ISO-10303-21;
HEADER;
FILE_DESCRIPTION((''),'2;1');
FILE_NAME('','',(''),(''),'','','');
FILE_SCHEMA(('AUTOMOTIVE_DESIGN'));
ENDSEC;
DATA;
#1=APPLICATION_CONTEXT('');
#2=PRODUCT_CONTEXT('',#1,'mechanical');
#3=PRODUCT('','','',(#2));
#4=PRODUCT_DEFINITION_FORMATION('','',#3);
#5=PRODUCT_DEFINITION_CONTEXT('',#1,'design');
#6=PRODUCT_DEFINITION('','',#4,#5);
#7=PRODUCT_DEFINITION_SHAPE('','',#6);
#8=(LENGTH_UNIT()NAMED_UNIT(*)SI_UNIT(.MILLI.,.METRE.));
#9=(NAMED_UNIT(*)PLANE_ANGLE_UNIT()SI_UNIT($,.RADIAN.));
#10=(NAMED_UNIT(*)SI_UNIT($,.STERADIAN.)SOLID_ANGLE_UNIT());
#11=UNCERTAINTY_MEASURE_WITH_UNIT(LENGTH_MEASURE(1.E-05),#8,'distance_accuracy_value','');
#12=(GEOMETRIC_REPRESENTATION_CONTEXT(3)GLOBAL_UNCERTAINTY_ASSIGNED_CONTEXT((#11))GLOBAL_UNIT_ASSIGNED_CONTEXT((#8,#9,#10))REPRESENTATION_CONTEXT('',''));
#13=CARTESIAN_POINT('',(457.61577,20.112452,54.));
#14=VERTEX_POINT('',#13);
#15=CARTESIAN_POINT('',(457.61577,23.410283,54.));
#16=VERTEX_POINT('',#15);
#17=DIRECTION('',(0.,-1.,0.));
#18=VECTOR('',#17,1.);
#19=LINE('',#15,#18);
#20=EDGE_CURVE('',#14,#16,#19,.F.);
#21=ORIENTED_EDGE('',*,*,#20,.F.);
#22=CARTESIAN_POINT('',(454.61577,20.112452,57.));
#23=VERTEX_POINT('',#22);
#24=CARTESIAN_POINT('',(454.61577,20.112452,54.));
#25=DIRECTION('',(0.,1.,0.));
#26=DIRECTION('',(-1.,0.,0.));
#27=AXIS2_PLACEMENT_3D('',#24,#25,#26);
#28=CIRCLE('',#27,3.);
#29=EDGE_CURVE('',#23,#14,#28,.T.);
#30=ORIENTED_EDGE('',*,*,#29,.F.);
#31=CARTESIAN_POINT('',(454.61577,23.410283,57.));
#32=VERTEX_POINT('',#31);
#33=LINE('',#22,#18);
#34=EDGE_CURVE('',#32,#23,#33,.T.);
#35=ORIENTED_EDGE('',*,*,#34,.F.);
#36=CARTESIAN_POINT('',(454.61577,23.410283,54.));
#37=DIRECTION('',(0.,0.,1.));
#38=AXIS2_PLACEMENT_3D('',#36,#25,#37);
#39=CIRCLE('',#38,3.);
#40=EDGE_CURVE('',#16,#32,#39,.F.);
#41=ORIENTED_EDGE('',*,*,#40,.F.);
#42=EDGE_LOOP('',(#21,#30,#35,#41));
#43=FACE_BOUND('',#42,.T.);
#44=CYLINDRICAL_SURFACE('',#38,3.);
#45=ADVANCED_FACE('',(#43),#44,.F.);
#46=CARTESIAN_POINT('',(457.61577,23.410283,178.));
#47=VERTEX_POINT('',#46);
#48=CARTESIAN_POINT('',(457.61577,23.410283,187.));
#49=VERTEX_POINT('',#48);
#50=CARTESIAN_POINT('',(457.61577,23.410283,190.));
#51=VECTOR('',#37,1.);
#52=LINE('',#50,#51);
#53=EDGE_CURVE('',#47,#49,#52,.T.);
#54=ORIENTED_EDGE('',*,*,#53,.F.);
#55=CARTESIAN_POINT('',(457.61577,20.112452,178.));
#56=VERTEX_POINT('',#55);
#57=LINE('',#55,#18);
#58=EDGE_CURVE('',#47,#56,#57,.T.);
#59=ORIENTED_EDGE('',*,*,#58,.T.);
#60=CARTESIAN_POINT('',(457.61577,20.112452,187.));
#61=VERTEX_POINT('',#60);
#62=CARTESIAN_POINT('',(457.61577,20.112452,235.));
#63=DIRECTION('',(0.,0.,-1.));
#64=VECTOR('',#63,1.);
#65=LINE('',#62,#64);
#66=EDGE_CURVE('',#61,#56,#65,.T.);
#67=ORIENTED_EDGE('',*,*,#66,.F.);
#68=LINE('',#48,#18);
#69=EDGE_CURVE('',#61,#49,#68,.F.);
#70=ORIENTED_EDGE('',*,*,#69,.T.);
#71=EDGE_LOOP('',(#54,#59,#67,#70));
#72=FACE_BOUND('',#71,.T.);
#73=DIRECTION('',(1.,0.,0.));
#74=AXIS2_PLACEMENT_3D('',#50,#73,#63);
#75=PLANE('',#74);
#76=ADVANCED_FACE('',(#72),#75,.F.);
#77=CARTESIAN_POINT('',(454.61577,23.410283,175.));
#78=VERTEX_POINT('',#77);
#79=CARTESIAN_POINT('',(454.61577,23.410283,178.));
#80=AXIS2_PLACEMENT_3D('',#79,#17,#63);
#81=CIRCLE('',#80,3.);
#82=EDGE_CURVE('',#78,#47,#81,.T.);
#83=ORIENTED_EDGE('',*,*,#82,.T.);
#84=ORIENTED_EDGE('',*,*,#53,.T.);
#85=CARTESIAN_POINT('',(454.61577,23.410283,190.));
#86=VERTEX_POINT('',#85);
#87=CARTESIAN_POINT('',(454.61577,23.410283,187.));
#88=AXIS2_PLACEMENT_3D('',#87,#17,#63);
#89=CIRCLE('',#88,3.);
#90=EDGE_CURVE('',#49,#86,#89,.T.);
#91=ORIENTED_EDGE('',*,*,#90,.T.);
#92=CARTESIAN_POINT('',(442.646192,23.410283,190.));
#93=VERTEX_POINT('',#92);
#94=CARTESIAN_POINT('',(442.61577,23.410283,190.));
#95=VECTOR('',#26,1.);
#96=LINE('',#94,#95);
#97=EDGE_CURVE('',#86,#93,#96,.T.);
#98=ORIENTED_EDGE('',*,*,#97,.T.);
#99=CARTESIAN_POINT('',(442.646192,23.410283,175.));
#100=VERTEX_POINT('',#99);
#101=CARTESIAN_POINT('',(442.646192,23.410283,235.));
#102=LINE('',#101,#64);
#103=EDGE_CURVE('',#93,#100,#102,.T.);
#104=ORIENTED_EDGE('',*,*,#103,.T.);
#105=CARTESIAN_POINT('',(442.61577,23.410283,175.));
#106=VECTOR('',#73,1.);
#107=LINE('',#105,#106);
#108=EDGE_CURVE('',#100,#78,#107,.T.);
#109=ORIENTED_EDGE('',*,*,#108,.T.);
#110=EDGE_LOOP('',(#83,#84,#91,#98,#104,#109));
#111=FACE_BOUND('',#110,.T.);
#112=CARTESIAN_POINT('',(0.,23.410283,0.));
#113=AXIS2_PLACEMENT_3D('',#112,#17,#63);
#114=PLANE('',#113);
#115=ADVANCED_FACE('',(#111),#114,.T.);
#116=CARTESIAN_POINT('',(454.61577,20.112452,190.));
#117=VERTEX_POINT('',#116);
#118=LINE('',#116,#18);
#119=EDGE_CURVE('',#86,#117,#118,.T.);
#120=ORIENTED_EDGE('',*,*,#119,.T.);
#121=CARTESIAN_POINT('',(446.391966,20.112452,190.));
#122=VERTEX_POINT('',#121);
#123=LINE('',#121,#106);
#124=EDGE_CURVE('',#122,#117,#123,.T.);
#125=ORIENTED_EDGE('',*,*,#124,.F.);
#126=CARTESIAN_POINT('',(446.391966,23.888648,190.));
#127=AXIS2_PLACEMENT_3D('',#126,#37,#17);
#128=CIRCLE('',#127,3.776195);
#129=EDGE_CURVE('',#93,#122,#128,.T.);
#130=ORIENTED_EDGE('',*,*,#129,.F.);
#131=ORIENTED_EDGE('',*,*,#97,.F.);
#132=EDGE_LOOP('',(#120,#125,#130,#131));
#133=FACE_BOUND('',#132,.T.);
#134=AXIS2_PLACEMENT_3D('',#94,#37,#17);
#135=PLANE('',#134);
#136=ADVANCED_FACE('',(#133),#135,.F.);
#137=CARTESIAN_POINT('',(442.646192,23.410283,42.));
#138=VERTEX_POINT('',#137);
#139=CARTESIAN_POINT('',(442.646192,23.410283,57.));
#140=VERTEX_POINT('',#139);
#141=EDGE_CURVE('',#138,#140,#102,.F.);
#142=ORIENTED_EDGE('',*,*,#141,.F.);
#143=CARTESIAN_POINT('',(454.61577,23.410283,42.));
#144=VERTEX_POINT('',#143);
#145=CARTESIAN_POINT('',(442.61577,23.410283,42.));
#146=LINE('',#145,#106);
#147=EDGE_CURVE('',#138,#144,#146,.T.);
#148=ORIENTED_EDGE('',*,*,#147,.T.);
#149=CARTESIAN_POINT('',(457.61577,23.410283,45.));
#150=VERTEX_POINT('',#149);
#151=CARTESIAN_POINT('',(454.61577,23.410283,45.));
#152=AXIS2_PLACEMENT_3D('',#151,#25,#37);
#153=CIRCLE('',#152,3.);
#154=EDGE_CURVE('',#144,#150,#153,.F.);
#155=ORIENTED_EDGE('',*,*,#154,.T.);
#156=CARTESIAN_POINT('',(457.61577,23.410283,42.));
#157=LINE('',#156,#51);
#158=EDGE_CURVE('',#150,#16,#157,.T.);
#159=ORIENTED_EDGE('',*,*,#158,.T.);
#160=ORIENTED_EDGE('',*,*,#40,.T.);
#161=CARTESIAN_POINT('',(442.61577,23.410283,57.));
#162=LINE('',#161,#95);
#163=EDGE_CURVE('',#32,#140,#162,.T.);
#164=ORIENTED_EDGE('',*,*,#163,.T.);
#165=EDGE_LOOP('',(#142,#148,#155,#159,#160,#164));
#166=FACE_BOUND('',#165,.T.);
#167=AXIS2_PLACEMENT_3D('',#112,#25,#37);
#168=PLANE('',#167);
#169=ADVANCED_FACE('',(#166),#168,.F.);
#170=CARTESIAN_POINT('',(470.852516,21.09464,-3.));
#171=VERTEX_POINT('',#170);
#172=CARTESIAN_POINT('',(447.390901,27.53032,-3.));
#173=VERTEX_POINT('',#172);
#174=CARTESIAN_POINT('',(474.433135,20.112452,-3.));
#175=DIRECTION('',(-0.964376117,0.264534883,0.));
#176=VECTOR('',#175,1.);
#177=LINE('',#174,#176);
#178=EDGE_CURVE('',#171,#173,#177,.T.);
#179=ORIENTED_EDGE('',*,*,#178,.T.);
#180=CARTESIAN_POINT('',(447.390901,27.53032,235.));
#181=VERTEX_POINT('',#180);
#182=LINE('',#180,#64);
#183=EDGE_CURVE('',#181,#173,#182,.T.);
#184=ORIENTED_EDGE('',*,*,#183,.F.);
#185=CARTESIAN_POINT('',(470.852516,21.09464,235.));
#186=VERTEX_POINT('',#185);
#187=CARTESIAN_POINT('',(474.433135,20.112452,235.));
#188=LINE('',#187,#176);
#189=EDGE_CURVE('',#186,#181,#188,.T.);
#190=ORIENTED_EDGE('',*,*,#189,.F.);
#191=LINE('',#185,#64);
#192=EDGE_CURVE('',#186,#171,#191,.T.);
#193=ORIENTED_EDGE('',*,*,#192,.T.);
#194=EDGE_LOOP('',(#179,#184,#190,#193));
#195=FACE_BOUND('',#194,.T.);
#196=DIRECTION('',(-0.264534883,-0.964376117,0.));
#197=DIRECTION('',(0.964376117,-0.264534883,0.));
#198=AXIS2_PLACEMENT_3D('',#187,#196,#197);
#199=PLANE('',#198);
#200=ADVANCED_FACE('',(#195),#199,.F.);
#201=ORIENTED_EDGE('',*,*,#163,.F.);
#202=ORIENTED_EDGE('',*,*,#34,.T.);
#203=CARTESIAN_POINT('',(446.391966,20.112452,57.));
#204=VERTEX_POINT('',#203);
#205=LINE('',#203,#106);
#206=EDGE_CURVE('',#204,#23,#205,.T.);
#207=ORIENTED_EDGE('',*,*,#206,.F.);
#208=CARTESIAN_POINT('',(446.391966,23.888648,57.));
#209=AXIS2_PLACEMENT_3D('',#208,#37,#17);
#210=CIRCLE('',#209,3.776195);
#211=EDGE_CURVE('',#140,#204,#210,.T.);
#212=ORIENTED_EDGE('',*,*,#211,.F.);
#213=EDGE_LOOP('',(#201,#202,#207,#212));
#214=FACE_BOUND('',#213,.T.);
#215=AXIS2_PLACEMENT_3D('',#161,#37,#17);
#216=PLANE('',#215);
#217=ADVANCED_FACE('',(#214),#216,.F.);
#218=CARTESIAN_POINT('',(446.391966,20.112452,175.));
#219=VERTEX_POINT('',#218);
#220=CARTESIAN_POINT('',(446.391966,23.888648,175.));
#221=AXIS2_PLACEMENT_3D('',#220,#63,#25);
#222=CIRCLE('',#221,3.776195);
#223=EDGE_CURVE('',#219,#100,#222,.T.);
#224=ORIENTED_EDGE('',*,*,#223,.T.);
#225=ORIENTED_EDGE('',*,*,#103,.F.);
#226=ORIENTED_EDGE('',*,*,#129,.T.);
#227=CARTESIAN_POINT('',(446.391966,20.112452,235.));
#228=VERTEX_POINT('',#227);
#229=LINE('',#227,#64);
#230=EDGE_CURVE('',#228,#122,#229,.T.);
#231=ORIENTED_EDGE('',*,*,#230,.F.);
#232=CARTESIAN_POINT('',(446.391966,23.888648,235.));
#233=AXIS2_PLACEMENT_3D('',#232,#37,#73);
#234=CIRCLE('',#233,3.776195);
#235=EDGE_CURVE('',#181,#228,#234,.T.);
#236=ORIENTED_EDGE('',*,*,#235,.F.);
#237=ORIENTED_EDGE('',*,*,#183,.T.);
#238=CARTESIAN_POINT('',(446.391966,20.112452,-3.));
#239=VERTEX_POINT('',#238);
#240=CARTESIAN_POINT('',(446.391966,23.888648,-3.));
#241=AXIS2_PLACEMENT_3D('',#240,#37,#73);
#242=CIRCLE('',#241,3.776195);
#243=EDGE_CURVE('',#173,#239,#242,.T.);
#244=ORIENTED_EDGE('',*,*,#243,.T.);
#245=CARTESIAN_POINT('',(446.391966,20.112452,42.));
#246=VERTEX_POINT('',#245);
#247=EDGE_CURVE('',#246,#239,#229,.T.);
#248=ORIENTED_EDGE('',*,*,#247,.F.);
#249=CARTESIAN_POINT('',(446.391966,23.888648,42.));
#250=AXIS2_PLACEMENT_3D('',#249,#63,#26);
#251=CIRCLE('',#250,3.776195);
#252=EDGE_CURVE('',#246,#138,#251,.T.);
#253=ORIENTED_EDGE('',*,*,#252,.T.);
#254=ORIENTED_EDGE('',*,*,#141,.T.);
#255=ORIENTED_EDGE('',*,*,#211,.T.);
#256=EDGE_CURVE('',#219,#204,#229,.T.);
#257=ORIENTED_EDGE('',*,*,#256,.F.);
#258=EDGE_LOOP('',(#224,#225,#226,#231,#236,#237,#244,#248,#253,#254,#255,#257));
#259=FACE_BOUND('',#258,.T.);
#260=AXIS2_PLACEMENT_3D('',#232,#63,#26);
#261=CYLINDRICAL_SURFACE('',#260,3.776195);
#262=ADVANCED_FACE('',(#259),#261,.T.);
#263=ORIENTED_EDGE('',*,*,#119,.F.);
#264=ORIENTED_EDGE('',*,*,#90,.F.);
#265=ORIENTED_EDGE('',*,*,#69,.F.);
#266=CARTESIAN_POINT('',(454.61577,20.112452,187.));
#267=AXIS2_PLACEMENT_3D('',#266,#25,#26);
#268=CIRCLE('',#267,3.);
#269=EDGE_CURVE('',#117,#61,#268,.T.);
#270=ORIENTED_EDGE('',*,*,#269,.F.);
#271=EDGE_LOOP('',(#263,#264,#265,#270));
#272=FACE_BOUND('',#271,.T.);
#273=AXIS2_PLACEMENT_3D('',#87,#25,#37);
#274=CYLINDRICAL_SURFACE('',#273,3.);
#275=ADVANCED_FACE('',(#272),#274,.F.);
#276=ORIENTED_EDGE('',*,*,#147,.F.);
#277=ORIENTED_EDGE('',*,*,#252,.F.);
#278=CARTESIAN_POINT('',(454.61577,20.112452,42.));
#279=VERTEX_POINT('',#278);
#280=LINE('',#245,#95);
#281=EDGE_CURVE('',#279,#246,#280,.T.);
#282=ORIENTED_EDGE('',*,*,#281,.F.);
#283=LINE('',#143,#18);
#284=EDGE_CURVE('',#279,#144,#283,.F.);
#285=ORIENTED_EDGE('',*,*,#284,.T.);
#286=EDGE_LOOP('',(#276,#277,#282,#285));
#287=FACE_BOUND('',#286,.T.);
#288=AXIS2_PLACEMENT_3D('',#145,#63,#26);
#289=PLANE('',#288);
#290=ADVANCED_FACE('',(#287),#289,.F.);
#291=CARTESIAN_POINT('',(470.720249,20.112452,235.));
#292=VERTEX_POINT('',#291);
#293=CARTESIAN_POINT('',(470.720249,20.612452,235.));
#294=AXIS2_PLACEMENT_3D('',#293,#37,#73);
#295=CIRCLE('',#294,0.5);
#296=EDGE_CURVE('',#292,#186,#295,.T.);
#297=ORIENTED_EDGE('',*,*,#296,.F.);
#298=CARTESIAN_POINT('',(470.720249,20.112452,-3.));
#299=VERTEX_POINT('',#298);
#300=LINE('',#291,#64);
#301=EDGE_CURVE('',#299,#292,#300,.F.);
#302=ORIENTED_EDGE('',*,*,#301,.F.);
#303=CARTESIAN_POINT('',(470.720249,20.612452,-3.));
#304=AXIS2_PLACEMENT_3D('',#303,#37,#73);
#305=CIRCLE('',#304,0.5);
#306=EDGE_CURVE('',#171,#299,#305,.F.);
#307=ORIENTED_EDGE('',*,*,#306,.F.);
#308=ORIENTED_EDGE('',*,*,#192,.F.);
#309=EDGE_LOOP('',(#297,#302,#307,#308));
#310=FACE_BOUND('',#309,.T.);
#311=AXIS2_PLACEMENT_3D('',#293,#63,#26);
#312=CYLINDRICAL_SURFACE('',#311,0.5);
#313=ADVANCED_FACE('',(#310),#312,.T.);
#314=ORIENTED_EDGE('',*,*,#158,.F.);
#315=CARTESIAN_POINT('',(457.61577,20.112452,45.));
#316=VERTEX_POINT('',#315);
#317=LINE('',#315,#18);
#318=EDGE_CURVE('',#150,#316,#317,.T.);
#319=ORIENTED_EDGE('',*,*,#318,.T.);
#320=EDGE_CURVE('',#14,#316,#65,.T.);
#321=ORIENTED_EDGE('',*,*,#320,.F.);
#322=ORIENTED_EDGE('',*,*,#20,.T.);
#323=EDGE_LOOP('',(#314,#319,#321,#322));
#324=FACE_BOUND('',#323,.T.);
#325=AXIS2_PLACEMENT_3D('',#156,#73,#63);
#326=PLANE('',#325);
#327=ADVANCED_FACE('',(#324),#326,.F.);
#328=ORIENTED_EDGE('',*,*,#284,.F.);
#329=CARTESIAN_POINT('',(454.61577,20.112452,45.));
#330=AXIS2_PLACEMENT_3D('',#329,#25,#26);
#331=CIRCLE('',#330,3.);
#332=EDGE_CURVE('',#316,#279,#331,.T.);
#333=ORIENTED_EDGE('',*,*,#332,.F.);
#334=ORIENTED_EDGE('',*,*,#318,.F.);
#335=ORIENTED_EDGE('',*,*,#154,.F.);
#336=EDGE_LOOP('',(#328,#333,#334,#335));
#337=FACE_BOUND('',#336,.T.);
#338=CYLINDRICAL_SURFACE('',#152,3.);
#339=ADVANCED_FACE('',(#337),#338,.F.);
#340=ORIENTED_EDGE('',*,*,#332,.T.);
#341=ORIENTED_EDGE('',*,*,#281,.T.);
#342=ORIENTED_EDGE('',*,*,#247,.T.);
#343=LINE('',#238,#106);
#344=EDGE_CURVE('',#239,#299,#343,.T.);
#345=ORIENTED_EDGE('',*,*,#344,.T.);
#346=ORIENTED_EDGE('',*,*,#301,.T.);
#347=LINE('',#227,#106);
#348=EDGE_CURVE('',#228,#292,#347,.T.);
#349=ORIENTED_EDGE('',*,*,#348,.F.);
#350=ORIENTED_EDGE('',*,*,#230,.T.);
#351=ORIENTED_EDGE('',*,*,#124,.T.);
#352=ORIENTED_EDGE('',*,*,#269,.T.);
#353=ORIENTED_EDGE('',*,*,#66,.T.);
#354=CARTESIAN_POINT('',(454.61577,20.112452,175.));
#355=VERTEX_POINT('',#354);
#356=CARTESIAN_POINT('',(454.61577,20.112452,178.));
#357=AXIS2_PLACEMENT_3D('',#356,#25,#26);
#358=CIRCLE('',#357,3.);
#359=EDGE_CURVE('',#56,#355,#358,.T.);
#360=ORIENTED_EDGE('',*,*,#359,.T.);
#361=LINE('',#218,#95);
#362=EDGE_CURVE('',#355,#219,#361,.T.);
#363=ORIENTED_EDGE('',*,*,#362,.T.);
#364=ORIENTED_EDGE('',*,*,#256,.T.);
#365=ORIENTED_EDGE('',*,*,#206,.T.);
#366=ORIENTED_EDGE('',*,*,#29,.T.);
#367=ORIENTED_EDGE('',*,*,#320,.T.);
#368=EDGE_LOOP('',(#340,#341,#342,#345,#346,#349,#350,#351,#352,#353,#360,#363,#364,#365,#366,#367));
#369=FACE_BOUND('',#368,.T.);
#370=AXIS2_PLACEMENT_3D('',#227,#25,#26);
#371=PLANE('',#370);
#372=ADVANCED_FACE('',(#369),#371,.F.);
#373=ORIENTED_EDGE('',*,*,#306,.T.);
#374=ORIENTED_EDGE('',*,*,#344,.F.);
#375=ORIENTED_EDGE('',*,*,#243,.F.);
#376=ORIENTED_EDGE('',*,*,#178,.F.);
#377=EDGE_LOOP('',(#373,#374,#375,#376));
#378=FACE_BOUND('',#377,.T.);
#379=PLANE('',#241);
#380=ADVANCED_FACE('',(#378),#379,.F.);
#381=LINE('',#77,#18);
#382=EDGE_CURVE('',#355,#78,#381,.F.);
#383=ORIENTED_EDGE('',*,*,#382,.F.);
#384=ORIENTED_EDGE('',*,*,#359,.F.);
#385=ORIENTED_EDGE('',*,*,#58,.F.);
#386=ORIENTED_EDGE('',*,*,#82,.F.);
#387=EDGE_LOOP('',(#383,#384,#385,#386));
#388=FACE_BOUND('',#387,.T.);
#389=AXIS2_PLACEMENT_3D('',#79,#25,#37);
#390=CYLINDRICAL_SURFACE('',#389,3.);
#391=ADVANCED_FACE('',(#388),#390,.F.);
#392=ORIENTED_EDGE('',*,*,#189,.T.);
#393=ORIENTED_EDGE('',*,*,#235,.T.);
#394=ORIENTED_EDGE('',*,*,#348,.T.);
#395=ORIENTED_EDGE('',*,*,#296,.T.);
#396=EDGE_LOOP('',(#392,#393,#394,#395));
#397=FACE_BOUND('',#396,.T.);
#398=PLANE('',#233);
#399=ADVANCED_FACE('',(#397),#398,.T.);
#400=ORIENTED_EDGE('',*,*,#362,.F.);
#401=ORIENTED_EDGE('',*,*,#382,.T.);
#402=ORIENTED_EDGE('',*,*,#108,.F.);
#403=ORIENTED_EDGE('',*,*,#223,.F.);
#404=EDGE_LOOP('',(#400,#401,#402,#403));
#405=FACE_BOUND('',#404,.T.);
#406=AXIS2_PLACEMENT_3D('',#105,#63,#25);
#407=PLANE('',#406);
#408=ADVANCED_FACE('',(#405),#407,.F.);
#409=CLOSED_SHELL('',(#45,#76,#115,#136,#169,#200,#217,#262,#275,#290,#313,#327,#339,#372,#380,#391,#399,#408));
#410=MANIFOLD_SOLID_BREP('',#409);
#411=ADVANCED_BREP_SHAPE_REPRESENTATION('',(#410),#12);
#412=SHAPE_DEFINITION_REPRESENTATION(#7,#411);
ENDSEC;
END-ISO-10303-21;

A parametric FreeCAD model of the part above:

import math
import FreeCAD as App
import Part
import Sketcher

V = App.Vector
Q = App.Units.Quantity


def edges_at(feature, points):
    """Names of the edges that pass closest to the given points."""
    edges = feature.Shape.Edges
    near = lambda p: min(range(len(edges)), key=lambda i: edges[i].distToShape(Part.Vertex(*p))[0])
    return sorted({f"Edge{near(p) + 1}" for p in points})


def add_polygon(sketch, points):
    """Adds a closed chain of lines whose ends are joined by coincident constraints."""
    first, n = sketch.GeometryCount, len(points)
    for a, b in zip(points, points[1:] + points[:1]):
        sketch.addGeometry(Part.LineSegment(App.Vector(*a, 0), App.Vector(*b, 0)), False)
    for i in range(n):
        sketch.addConstraint(Sketcher.Constraint("Coincident", first + i, 2, first + (i + 1) % n, 1))

doc = App.newDocument("Part")
params = doc.addObject("Spreadsheet::Sheet", "Params")
for row, (alias, value) in enumerate([
    ("pad1_length", "238 mm"),
    ("sketch2_width", "15 mm"),
    ("pocket1_length", "54 mm"),
    ("fillet_radius", "0.5 mm"),
    ("fillet2_radius", "3 mm"),
], start=1):
    params.set(f"A{row}", alias)
    params.set(f"B{row}", "=" + value)
    params.setAlias(f"B{row}", alias)

body = doc.addObject("PartDesign::Body", "Body")

# Sketch on XY plane
sketch1 = body.newObject("Sketcher::SketchObject", "Sketch")
sketch1.AttachmentSupport = (doc.getObject("XY_Plane"), [""])
sketch1.MapMode = "FlatFace"
sketch1.AttachmentOffset = App.Placement(V(0, 0, -3), App.Rotation())
sketch1.addGeometry([
    Part.LineSegment(V(446.4, 20.1, 0), V(474.4, 20.1, 0)),
    Part.LineSegment(V(474.4, 20.1, 0), V(447.4, 27.5, 0)),
    Part.ArcOfCircle(Part.Circle(V(446.4, 23.9, 0), V(0, 0, 1), 3.8), math.radians(75), math.radians(270)),
], False)
sketch1.addConstraint([
    Sketcher.Constraint("Coincident", 0, 2, 1, 1),
    Sketcher.Constraint("Tangent", 1, 2, 2, 1),
    Sketcher.Constraint("Tangent", 2, 2, 0, 1),
    Sketcher.Constraint("Horizontal", 0),
    Sketcher.Constraint("Radius", 2, Q("3.776195 mm")),
    Sketcher.Constraint("DistanceX", 0, 1, 0, 2, Q("28.04117 mm")),
    Sketcher.Constraint("DistanceX", -1, 1, 1, 2, Q("447.390901 mm")),
    Sketcher.Constraint("DistanceY", -1, 1, 1, 2, Q("27.53032 mm")),
])
pad1 = body.newObject("PartDesign::Pad", "Pad")
pad1.Profile = sketch1
pad1.setExpression("Length", "Params.pad1_length")

# Sketch on XZ plane
sketch2 = body.newObject("Sketcher::SketchObject", "Sketch001")
sketch2.AttachmentSupport = (doc.getObject("XZ_Plane"), [""])
sketch2.MapMode = "FlatFace"
sketch2.AttachmentOffset = App.Placement(V(0, 0, 30.589717), App.Rotation())
add_polygon(sketch2, [(443, 190), (443, 175), (458, 175), (458, 190)])  # lines 0-3
add_polygon(sketch2, [(443, 57), (443, 42), (458, 42), (458, 57)])  # lines 4-7
sketch2.addConstraint([
    Sketcher.Constraint("Vertical", 0),
    Sketcher.Constraint("Horizontal", 1),
    Sketcher.Constraint("Vertical", 2),
    Sketcher.Constraint("Horizontal", 3),
    Sketcher.Constraint("Vertical", 4),
    Sketcher.Constraint("Horizontal", 5),
    Sketcher.Constraint("Vertical", 6),
    Sketcher.Constraint("Horizontal", 7),
    Sketcher.Constraint("Vertical", 3, 2, 4, 2),
    Sketcher.Constraint("Vertical", 2, 2, 5, 2),
    Sketcher.Constraint("Equal", 7, 0),
    Sketcher.Constraint("Equal", 2, 4),
    Sketcher.Constraint("DistanceX", 1, 1, 1, 2, Q("15 mm")),
    Sketcher.Constraint("DistanceY", -1, 1, 0, 2, Q("175 mm")),
    Sketcher.Constraint("DistanceY", -1, 1, 4, 2, Q("42 mm")),
    Sketcher.Constraint("DistanceX", -1, 1, 0, 2, Q("442.61577 mm")),
])
sketch2.setExpression("Constraints[20]", "Params.sketch2_width")
pocket1 = body.newObject("PartDesign::Pocket", "Pocket")
pocket1.Profile = sketch2
pocket1.setExpression("Length", "Params.pocket1_length")
doc.recompute()

fillet = body.newObject("PartDesign::Fillet", "Fillet")
fillet.Base = (pocket1, edges_at(pocket1, [(474.433, 20.112, 116)]))
fillet.setExpression("Radius", "Params.fillet_radius")
doc.recompute()

fillet2 = body.newObject("PartDesign::Fillet", "Fillet001")
fillet2.Base = (fillet, edges_at(fillet, [
    (457.616, 21.761, 190),
    (457.616, 21.761, 175),
    (457.616, 21.761, 57),
    (457.616, 21.761, 42),
]))
fillet2.setExpression("Radius", "Params.fillet2_radius")

doc.recompute()
